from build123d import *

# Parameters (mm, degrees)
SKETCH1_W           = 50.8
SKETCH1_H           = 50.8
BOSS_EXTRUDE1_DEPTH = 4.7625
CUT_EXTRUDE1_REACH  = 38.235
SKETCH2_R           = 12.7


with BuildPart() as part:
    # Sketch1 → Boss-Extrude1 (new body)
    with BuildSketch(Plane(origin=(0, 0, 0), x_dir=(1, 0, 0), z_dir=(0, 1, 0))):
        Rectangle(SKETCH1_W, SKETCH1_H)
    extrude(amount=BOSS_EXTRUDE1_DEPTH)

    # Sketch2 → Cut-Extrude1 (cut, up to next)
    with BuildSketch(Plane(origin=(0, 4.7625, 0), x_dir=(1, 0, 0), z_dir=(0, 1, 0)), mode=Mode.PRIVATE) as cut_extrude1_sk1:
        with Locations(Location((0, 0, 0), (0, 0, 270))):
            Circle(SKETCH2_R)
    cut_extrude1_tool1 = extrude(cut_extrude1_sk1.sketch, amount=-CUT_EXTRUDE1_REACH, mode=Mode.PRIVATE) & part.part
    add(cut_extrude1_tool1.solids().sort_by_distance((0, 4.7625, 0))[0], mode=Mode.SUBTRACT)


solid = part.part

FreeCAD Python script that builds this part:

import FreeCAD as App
import Part
import Sketcher

V = App.Vector
Q = App.Units.Quantity

doc = App.newDocument("Part")
body = doc.addObject("PartDesign::Body", "Body")

# Sketch on XZ plane
sketch1 = body.newObject("Sketcher::SketchObject", "Sketch")
sketch1.AttachmentSupport = (doc.getObject("XZ_Plane"), [""])
sketch1.MapMode = "FlatFace"
sketch1.addGeometry([
    Part.LineSegment(V(-25, -25, 0), V(-25, 25, 0)),
    Part.LineSegment(V(-25, 25, 0), V(25, 25, 0)),
    Part.LineSegment(V(25, 25, 0), V(25, -25, 0)),
    Part.LineSegment(V(25, -25, 0), V(-25, -25, 0)),
], False)
sketch1.addConstraint([
    Sketcher.Constraint("Coincident", 0, 2, 1, 1),
    Sketcher.Constraint("Coincident", 1, 2, 2, 1),
    Sketcher.Constraint("Coincident", 2, 2, 3, 1),
    Sketcher.Constraint("Coincident", 3, 2, 0, 1),
    Sketcher.Constraint("Vertical", 0),
    Sketcher.Constraint("Horizontal", 1),
    Sketcher.Constraint("Vertical", 2),
    Sketcher.Constraint("Horizontal", 3),
    Sketcher.Constraint("Symmetric", 0, 2, 2, 2, -1, 1),
    Sketcher.Constraint("Equal", 3, 0),
    Sketcher.Constraint("DistanceX", 1, 1, 1, 2, Q("2 in")),
])
pad1 = body.newObject("PartDesign::Pad", "Pad")
pad1.Profile = sketch1
pad1.Length = Q("0.1875 in")
pad1.Reversed = True

# Sketch on XZ plane
sketch2 = body.newObject("Sketcher::SketchObject", "Sketch001")
sketch2.AttachmentSupport = (doc.getObject("XZ_Plane"), [""])
sketch2.MapMode = "FlatFace"
sketch2.AttachmentOffset = App.Placement(V(0, 0, -0.1875 * 25.4), App.Rotation())
sketch2.addGeometry(Part.Circle(V(0, 0, 0), V(0, 0, 1), 13), False)
sketch2.addConstraint([
    Sketcher.Constraint("Coincident", 0, 3, -1, 1),
    Sketcher.Constraint("Diameter", 0, Q("1 in")),
])
pocket1 = body.newObject("PartDesign::Pocket", "Pocket")
pocket1.Profile = sketch2
pocket1.Type = "UpToFirst"
pocket1.Reversed = True

doc.recompute()
